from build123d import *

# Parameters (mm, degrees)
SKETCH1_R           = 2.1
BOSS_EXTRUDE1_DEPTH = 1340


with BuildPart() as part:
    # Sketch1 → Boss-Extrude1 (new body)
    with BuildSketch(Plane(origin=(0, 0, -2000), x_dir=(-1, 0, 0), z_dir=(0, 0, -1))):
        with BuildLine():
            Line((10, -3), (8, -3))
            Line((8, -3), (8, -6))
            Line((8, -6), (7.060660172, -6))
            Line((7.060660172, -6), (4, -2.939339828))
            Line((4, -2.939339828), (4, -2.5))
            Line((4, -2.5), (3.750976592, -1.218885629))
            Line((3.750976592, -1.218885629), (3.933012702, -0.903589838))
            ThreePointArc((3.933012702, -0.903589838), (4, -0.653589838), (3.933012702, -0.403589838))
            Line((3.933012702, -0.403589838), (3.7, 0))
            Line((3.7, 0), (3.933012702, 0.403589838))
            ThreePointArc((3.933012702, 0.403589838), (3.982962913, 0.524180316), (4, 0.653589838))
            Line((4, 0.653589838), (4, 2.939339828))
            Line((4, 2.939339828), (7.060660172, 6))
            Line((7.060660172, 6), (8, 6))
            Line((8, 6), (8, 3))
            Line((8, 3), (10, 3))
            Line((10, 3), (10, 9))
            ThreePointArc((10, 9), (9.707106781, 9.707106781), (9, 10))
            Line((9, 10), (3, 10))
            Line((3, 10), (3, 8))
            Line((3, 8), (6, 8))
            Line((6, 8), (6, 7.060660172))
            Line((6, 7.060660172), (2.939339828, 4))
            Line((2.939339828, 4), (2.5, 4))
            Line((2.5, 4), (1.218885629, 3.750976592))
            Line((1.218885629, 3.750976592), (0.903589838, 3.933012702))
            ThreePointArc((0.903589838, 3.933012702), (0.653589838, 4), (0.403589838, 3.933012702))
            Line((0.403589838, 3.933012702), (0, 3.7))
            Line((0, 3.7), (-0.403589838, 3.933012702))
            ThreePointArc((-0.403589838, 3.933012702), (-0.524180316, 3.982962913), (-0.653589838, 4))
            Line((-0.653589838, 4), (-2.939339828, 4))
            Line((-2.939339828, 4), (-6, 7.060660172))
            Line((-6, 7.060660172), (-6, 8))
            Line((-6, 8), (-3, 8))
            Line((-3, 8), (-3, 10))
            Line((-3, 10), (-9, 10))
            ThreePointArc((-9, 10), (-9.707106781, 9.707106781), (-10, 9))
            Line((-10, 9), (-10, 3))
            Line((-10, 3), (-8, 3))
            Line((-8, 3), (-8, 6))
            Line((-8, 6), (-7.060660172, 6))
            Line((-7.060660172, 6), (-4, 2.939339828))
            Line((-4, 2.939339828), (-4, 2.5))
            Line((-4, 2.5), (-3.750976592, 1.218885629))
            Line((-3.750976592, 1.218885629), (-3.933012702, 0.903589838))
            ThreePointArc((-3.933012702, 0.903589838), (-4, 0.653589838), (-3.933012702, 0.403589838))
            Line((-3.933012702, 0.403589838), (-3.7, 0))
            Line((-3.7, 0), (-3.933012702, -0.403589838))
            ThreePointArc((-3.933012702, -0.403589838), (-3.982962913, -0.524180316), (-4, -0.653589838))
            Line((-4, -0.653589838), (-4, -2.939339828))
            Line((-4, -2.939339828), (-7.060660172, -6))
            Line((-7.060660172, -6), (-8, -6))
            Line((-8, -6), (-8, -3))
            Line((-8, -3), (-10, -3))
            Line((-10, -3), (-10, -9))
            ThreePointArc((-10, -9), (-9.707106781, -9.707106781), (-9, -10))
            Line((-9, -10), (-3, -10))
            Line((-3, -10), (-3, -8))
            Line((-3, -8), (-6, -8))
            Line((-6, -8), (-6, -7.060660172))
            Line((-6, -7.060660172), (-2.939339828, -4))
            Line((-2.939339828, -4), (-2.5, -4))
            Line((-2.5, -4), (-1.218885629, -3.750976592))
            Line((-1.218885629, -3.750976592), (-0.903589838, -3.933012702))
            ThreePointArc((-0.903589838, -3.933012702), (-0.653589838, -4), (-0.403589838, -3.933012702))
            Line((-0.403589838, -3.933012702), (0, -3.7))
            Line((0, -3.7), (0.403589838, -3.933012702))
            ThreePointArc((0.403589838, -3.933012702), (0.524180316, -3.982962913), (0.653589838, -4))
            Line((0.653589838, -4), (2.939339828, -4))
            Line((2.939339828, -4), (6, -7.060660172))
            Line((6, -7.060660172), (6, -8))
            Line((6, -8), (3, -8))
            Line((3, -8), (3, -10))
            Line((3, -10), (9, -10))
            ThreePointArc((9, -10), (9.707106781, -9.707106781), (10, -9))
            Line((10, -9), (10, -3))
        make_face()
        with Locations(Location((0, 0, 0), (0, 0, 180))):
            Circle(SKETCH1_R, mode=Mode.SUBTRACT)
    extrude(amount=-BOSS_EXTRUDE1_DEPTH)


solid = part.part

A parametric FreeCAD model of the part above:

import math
import FreeCAD as App
import Part
import Sketcher
from FreeCAD import Vector
Q = App.Units.Quantity

doc = App.newDocument("Part")
params = doc.addObject("Spreadsheet::Sheet", "Params")
for row, (alias, value) in enumerate([
    ("sketch1_radius", "1 mm"),
    ("sketch1_diameter", "4.2 mm"),
    ("sketch1_radius2", "0.5 mm"),
    ("sketch1_width", "2 mm"),
    ("sketch1_width2", "6 mm"),
    ("pad1_length", "1340 mm"),
], start=1):
    params.set(f"A{row}", alias)
    params.set(f"B{row}", "=" + value)
    params.setAlias(f"B{row}", alias)

body = doc.addObject("PartDesign::Body", "Body")

# Sketch on XY plane
sketch1 = body.newObject("Sketcher::SketchObject", "Sketch")
sketch1.AttachmentSupport = (doc.getObject("XY_Plane"), [""])
sketch1.MapMode = "FlatFace"
sketch1.AttachmentOffset = App.Placement(Vector(0, 0, -2000), App.Rotation())
sketch1.addGeometry([
    Part.LineSegment(Vector(-10, -3, 0), Vector(-8, -3, 0)),  # 0
    Part.LineSegment(Vector(-8, -3, 0), Vector(-8, -6, 0)),  # 1
    Part.LineSegment(Vector(-8, -6, 0), Vector(-7.06, -6, 0)),  # 2
    Part.LineSegment(Vector(-7.06, -6, 0), Vector(-4, -2.94, 0)),  # 3
    Part.LineSegment(Vector(-4, -2.94, 0), Vector(-4, -2.5, 0)),  # 4
    Part.LineSegment(Vector(-4, -2.5, 0), Vector(-3.75, -1.22, 0)),  # 5
    Part.LineSegment(Vector(-3.75, -1.22, 0), Vector(-3.93, -0.9, 0)),  # 6
    Part.ArcOfCircle(Part.Circle(Vector(-3.5, -0.65, 0), Vector(0, 0, 1), 0.5), math.radians(150), math.radians(210)),  # 7
    Part.LineSegment(Vector(-3.93, -0.4, 0), Vector(-3.7, 0, 0)),  # 8
    Part.LineSegment(Vector(-3.7, 0, 0), Vector(-3.93, 0.4, 0)),  # 9
    Part.ArcOfCircle(Part.Circle(Vector(-3.5, 0.65, 0), Vector(0, 0, 1), 0.5), math.radians(-180), math.radians(-150)),  # 10
    Part.LineSegment(Vector(-4, 0.65, 0), Vector(-4, 2.94, 0)),  # 11
    Part.LineSegment(Vector(-4, 2.94, 0), Vector(-7.06, 6, 0)),  # 12
    Part.LineSegment(Vector(-7.06, 6, 0), Vector(-8, 6, 0)),  # 13
    Part.LineSegment(Vector(-8, 6, 0), Vector(-8, 3, 0)),  # 14
    Part.LineSegment(Vector(-8, 3, 0), Vector(-10, 3, 0)),  # 15
    Part.LineSegment(Vector(-10, 3, 0), Vector(-10, 9, 0)),  # 16
    Part.ArcOfCircle(Part.Circle(Vector(-9, 9, 0), Vector(0, 0, 1), 1), math.radians(90), math.radians(180)),  # 17
    Part.LineSegment(Vector(-9, 10, 0), Vector(-3, 10, 0)),  # 18
    Part.LineSegment(Vector(-3, 10, 0), Vector(-3, 8, 0)),  # 19
    Part.LineSegment(Vector(-3, 8, 0), Vector(-6, 8, 0)),  # 20
    Part.LineSegment(Vector(-6, 8, 0), Vector(-6, 7.06, 0)),  # 21
    Part.LineSegment(Vector(-6, 7.06, 0), Vector(-2.94, 4, 0)),  # 22
    Part.LineSegment(Vector(-2.94, 4, 0), Vector(-2.5, 4, 0)),  # 23
    Part.LineSegment(Vector(-2.5, 4, 0), Vector(-1.22, 3.75, 0)),  # 24
    Part.LineSegment(Vector(-1.22, 3.75, 0), Vector(-0.9, 3.93, 0)),  # 25
    Part.ArcOfCircle(Part.Circle(Vector(-0.65, 3.5, 0), Vector(0, 0, 1), 0.5), math.radians(60), math.radians(120)),  # 26
    Part.LineSegment(Vector(-0.4, 3.93, 0), Vector(0, 3.7, 0)),  # 27
    Part.LineSegment(Vector(0, 3.7, 0), Vector(0.4, 3.93, 0)),  # 28
    Part.ArcOfCircle(Part.Circle(Vector(0.65, 3.5, 0), Vector(0, 0, 1), 0.5), math.radians(90), math.radians(120)),  # 29
    Part.LineSegment(Vector(0.65, 4, 0), Vector(2.94, 4, 0)),  # 30
    Part.LineSegment(Vector(2.94, 4, 0), Vector(6, 7.06, 0)),  # 31
    Part.LineSegment(Vector(6, 7.06, 0), Vector(6, 8, 0)),  # 32
    Part.LineSegment(Vector(6, 8, 0), Vector(3, 8, 0)),  # 33
    Part.LineSegment(Vector(3, 8, 0), Vector(3, 10, 0)),  # 34
    Part.LineSegment(Vector(3, 10, 0), Vector(9, 10, 0)),  # 35
    Part.ArcOfCircle(Part.Circle(Vector(9, 9, 0), Vector(0, 0, 1), 1), math.radians(0), math.radians(90)),  # 36
    Part.LineSegment(Vector(10, 9, 0), Vector(10, 3, 0)),  # 37
    Part.LineSegment(Vector(10, 3, 0), Vector(8, 3, 0)),  # 38
    Part.LineSegment(Vector(8, 3, 0), Vector(8, 6, 0)),  # 39
    Part.LineSegment(Vector(8, 6, 0), Vector(7.06, 6, 0)),  # 40
    Part.LineSegment(Vector(7.06, 6, 0), Vector(4, 2.94, 0)),  # 41
    Part.LineSegment(Vector(4, 2.94, 0), Vector(4, 2.5, 0)),  # 42
    Part.LineSegment(Vector(4, 2.5, 0), Vector(3.75, 1.22, 0)),  # 43
    Part.LineSegment(Vector(3.75, 1.22, 0), Vector(3.93, 0.9, 0)),  # 44
    Part.ArcOfCircle(Part.Circle(Vector(3.5, 0.65, 0), Vector(0, 0, 1), 0.5), math.radians(-30), math.radians(30)),  # 45
    Part.LineSegment(Vector(3.93, 0.4, 0), Vector(3.7, 0, 0)),  # 46
    Part.LineSegment(Vector(3.7, 0, 0), Vector(3.93, -0.4, 0)),  # 47
    Part.ArcOfCircle(Part.Circle(Vector(3.5, -0.65, 0), Vector(0, 0, 1), 0.5), math.radians(0), math.radians(30)),  # 48
    Part.LineSegment(Vector(4, -0.65, 0), Vector(4, -2.94, 0)),  # 49
    Part.LineSegment(Vector(4, -2.94, 0), Vector(7.06, -6, 0)),  # 50
    Part.LineSegment(Vector(7.06, -6, 0), Vector(8, -6, 0)),  # 51
    Part.LineSegment(Vector(8, -6, 0), Vector(8, -3, 0)),  # 52
    Part.LineSegment(Vector(8, -3, 0), Vector(10, -3, 0)),  # 53
    Part.LineSegment(Vector(10, -3, 0), Vector(10, -9, 0)),  # 54
    Part.ArcOfCircle(Part.Circle(Vector(9, -9, 0), Vector(0, 0, 1), 1), math.radians(-90), math.radians(0)),  # 55
    Part.LineSegment(Vector(9, -10, 0), Vector(3, -10, 0)),  # 56
    Part.LineSegment(Vector(3, -10, 0), Vector(3, -8, 0)),  # 57
    Part.LineSegment(Vector(3, -8, 0), Vector(6, -8, 0)),  # 58
    Part.LineSegment(Vector(6, -8, 0), Vector(6, -7.06, 0)),  # 59
    Part.LineSegment(Vector(6, -7.06, 0), Vector(2.94, -4, 0)),  # 60
    Part.LineSegment(Vector(2.94, -4, 0), Vector(2.5, -4, 0)),  # 61
    Part.LineSegment(Vector(2.5, -4, 0), Vector(1.22, -3.75, 0)),  # 62
    Part.LineSegment(Vector(1.22, -3.75, 0), Vector(0.9, -3.93, 0)),  # 63
    Part.ArcOfCircle(Part.Circle(Vector(0.65, -3.5, 0), Vector(0, 0, 1), 0.5), math.radians(-120), math.radians(-60)),  # 64
    Part.LineSegment(Vector(0.4, -3.93, 0), Vector(0, -3.7, 0)),  # 65
    Part.LineSegment(Vector(0, -3.7, 0), Vector(-0.4, -3.93, 0)),  # 66
    Part.ArcOfCircle(Part.Circle(Vector(-0.65, -3.5, 0), Vector(0, 0, 1), 0.5), math.radians(-90), math.radians(-60)),  # 67
    Part.LineSegment(Vector(-0.65, -4, 0), Vector(-2.94, -4, 0)),  # 68
    Part.LineSegment(Vector(-2.94, -4, 0), Vector(-6, -7.06, 0)),  # 69
    Part.LineSegment(Vector(-6, -7.06, 0), Vector(-6, -8, 0)),  # 70
    Part.LineSegment(Vector(-6, -8, 0), Vector(-3, -8, 0)),  # 71
    Part.LineSegment(Vector(-3, -8, 0), Vector(-3, -10, 0)),  # 72
    Part.LineSegment(Vector(-3, -10, 0), Vector(-9, -10, 0)),  # 73
    Part.ArcOfCircle(Part.Circle(Vector(-9, -9, 0), Vector(0, 0, 1), 1), math.radians(-180), math.radians(-90)),  # 74
    Part.LineSegment(Vector(-10, -9, 0), Vector(-10, -3, 0)),  # 75
    Part.Circle(Vector(0, 0, 0), Vector(0, 0, 1), 2.1),  # 76
], False)
sketch1.addConstraint([
    Sketcher.Constraint("Coincident", 0, 2, 1, 1),
    Sketcher.Constraint("Coincident", 1, 2, 2, 1),
    Sketcher.Constraint("Coincident", 2, 2, 3, 1),
    Sketcher.Constraint("Coincident", 3, 2, 4, 1),
    Sketcher.Constraint("Coincident", 4, 2, 5, 1),
    Sketcher.Constraint("Coincident", 5, 2, 6, 1),
    Sketcher.Constraint("Tangent", 6, 2, 7, 2),
    Sketcher.Constraint("Tangent", 7, 1, 8, 1),
    Sketcher.Constraint("Coincident", 8, 2, 9, 1),
    Sketcher.Constraint("Tangent", 9, 2, 10, 2),
    Sketcher.Constraint("Tangent", 10, 1, 11, 1),
    Sketcher.Constraint("Coincident", 11, 2, 12, 1),
    Sketcher.Constraint("Coincident", 12, 2, 13, 1),
    Sketcher.Constraint("Coincident", 13, 2, 14, 1),
    Sketcher.Constraint("Coincident", 14, 2, 15, 1),
    Sketcher.Constraint("Coincident", 15, 2, 16, 1),
    Sketcher.Constraint("Tangent", 16, 2, 17, 2),
    Sketcher.Constraint("Tangent", 17, 1, 18, 1),
    Sketcher.Constraint("Coincident", 18, 2, 19, 1),
    Sketcher.Constraint("Coincident", 19, 2, 20, 1),
    Sketcher.Constraint("Coincident", 20, 2, 21, 1),
    Sketcher.Constraint("Coincident", 21, 2, 22, 1),
    Sketcher.Constraint("Coincident", 22, 2, 23, 1),
    Sketcher.Constraint("Coincident", 23, 2, 24, 1),
    Sketcher.Constraint("Coincident", 24, 2, 25, 1),
    Sketcher.Constraint("Tangent", 25, 2, 26, 2),
    Sketcher.Constraint("Tangent", 26, 1, 27, 1),
    Sketcher.Constraint("Coincident", 27, 2, 28, 1),
    Sketcher.Constraint("Tangent", 28, 2, 29, 2),
    Sketcher.Constraint("Tangent", 29, 1, 30, 1),
    Sketcher.Constraint("Coincident", 30, 2, 31, 1),
    Sketcher.Constraint("Coincident", 31, 2, 32, 1),
    Sketcher.Constraint("Coincident", 32, 2, 33, 1),
    Sketcher.Constraint("Coincident", 33, 2, 34, 1),
    Sketcher.Constraint("Coincident", 34, 2, 35, 1),
    Sketcher.Constraint("Tangent", 35, 2, 36, 2),
    Sketcher.Constraint("Tangent", 36, 1, 37, 1),
    Sketcher.Constraint("Coincident", 37, 2, 38, 1),
    Sketcher.Constraint("Coincident", 38, 2, 39, 1),
    Sketcher.Constraint("Coincident", 39, 2, 40, 1),
    Sketcher.Constraint("Coincident", 40, 2, 41, 1),
    Sketcher.Constraint("Coincident", 41, 2, 42, 1),
    Sketcher.Constraint("Coincident", 42, 2, 43, 1),
    Sketcher.Constraint("Coincident", 43, 2, 44, 1),
    Sketcher.Constraint("Tangent", 44, 2, 45, 2),
    Sketcher.Constraint("Tangent", 45, 1, 46, 1),
    Sketcher.Constraint("Coincident", 46, 2, 47, 1),
    Sketcher.Constraint("Tangent", 47, 2, 48, 2),
    Sketcher.Constraint("Tangent", 48, 1, 49, 1),
    Sketcher.Constraint("Coincident", 49, 2, 50, 1),
    Sketcher.Constraint("Coincident", 50, 2, 51, 1),
    Sketcher.Constraint("Coincident", 51, 2, 52, 1),
    Sketcher.Constraint("Coincident", 52, 2, 53, 1),
    Sketcher.Constraint("Coincident", 53, 2, 54, 1),
    Sketcher.Constraint("Tangent", 54, 2, 55, 2),
    Sketcher.Constraint("Tangent", 55, 1, 56, 1),
    Sketcher.Constraint("Coincident", 56, 2, 57, 1),
    Sketcher.Constraint("Coincident", 57, 2, 58, 1),
    Sketcher.Constraint("Coincident", 58, 2, 59, 1),
    Sketcher.Constraint("Coincident", 59, 2, 60, 1),
    Sketcher.Constraint("Coincident", 60, 2, 61, 1),
    Sketcher.Constraint("Coincident", 61, 2, 62, 1),
    Sketcher.Constraint("Coincident", 62, 2, 63, 1),
    Sketcher.Constraint("Tangent", 63, 2, 64, 2),
    Sketcher.Constraint("Tangent", 64, 1, 65, 1),
    Sketcher.Constraint("Coincident", 65, 2, 66, 1),
    Sketcher.Constraint("Tangent", 66, 2, 67, 2),
    Sketcher.Constraint("Tangent", 67, 1, 68, 1),
    Sketcher.Constraint("Coincident", 68, 2, 69, 1),
    Sketcher.Constraint("Coincident", 69, 2, 70, 1),
    Sketcher.Constraint("Coincident", 70, 2, 71, 1),
    Sketcher.Constraint("Coincident", 71, 2, 72, 1),
    Sketcher.Constraint("Coincident", 72, 2, 73, 1),
    Sketcher.Constraint("Tangent", 73, 2, 74, 2),
    Sketcher.Constraint("Tangent", 74, 1, 75, 1),
    Sketcher.Constraint("Coincident", 75, 2, 0, 1),
    Sketcher.Constraint("Horizontal", 0),
    Sketcher.Constraint("Vertical", 1),
    Sketcher.Constraint("Horizontal", 2),
    Sketcher.Constraint("Vertical", 4),
    Sketcher.Constraint("Vertical", 11),
    Sketcher.Constraint("Horizontal", 13),
    Sketcher.Constraint("Vertical", 14),
    Sketcher.Constraint("Horizontal", 15),
    Sketcher.Constraint("Vertical", 16),
    Sketcher.Constraint("Horizontal", 18),
    Sketcher.Constraint("Vertical", 19),
    Sketcher.Constraint("Horizontal", 20),
    Sketcher.Constraint("Vertical", 21),
    Sketcher.Constraint("Horizontal", 23),
    Sketcher.Constraint("Horizontal", 30),
    Sketcher.Constraint("Vertical", 32),
    Sketcher.Constraint("Horizontal", 33),
    Sketcher.Constraint("Vertical", 34),
    Sketcher.Constraint("Horizontal", 35),
    Sketcher.Constraint("Vertical", 37),
    Sketcher.Constraint("Horizontal", 38),
    Sketcher.Constraint("Vertical", 39),
    Sketcher.Constraint("Horizontal", 40),
    Sketcher.Constraint("Vertical", 42),
    Sketcher.Constraint("Vertical", 49),
    Sketcher.Constraint("Horizontal", 51),
    Sketcher.Constraint("Vertical", 52),
    Sketcher.Constraint("Horizontal", 53),
    Sketcher.Constraint("Vertical", 54),
    Sketcher.Constraint("Horizontal", 56),
    Sketcher.Constraint("Vertical", 57),
    Sketcher.Constraint("Horizontal", 58),
    Sketcher.Constraint("Vertical", 59),
    Sketcher.Constraint("Horizontal", 61),
    Sketcher.Constraint("Horizontal", 68),
    Sketcher.Constraint("Vertical", 70),
    Sketcher.Constraint("Horizontal", 71),
    Sketcher.Constraint("Vertical", 72),
    Sketcher.Constraint("Horizontal", 73),
    Sketcher.Constraint("Vertical", 75),
    Sketcher.Constraint("Coincident", 76, 3, -1, 1),
    Sketcher.Constraint("Equal", 7, 10),
    Sketcher.Constraint("Equal", 10, 26),
    Sketcher.Constraint("Equal", 26, 29),
    Sketcher.Constraint("Equal", 17, 36),
    Sketcher.Constraint("Equal", 29, 45),
    Sketcher.Constraint("Equal", 45, 48),
    Sketcher.Constraint("Equal", 36, 55),
    Sketcher.Constraint("Equal", 48, 64),
    Sketcher.Constraint("Equal", 64, 67),
    Sketcher.Constraint("Equal", 55, 74),
    Sketcher.Constraint("Symmetric", 7, 3, 45, 3, -1, 1),
    Sketcher.Constraint("Symmetric", 10, 3, 48, 3, -1, 1),
    Sketcher.Constraint("Symmetric", 17, 3, 55, 3, -1, 1),
    Sketcher.Constraint("Symmetric", 26, 3, 64, 3, -1, 1),
    Sketcher.Constraint("Symmetric", 29, 3, 67, 3, -1, 1),
    Sketcher.Constraint("Symmetric", 36, 3, 74, 3, -1, 1),
    Sketcher.Constraint("Symmetric", 0, 2, 38, 2, -1, 1),
    Sketcher.Constraint("Symmetric", 2, 2, 40, 2, -1, 1),
    Sketcher.Constraint("Symmetric", 3, 2, 41, 2, -1, 1),
    Sketcher.Constraint("Symmetric", 5, 2, 43, 2, -1, 1),
    Sketcher.Constraint("Symmetric", 8, 2, 46, 2, -1, 1),
    Sketcher.Constraint("Symmetric", 12, 2, 50, 2, -1, 1),
    Sketcher.Constraint("Symmetric", 14, 2, 52, 2, -1, 1),
    Sketcher.Constraint("Symmetric", 19, 2, 57, 2, -1, 1),
    Sketcher.Constraint("Symmetric", 21, 2, 59, 2, -1, 1),
    Sketcher.Constraint("Symmetric", 22, 2, 60, 2, -1, 1),
    Sketcher.Constraint("Symmetric", 24, 2, 62, 2, -1, 1),
    Sketcher.Constraint("Symmetric", 27, 2, 65, 2, -1, 1),
    Sketcher.Constraint("Symmetric", 31, 2, 69, 2, -1, 1),
    Sketcher.Constraint("Symmetric", 33, 2, 71, 2, -1, 1),
    Sketcher.Constraint("Symmetric", 26, 3, 29, 3, -2),
    Sketcher.Constraint("Symmetric", 17, 3, 36, 3, -2),
    Sketcher.Constraint("Symmetric", 10, 3, 45, 3, -2),
    Sketcher.Constraint("Symmetric", 22, 2, 30, 2, -2),
    Sketcher.Constraint("Symmetric", 21, 2, 31, 2, -2),
    Sketcher.Constraint("Symmetric", 19, 2, 33, 2, -2),
    Sketcher.Constraint("Symmetric", 14, 2, 38, 2, -2),
    Sketcher.Constraint("Symmetric", 12, 2, 40, 2, -2),
    Sketcher.Constraint("Symmetric", 11, 2, 41, 2, -2),
    Sketcher.Constraint("PointOnObject", 8, 2, -1),
    Sketcher.Constraint("PointOnObject", 27, 2, -2),
    Sketcher.Constraint("Parallel", 6, 9),
    Sketcher.Constraint("Perpendicular", 3, 12),
    Sketcher.Constraint("Parallel", 12, 22),
    Sketcher.Constraint("Perpendicular", 5, 24),
    Sketcher.Constraint("Perpendicular", 9, 25),
    Sketcher.Constraint("Perpendicular", 8, 27),
    Sketcher.Constraint("Perpendicular", 24, 43),
    Sketcher.Constraint("Perpendicular", 41, 50),
    Sketcher.Constraint("Perpendicular", 43, 62),
    Sketcher.Constraint("Perpendicular", 60, 69),
    Sketcher.Constraint("Equal", 71, 1),
    Sketcher.Constraint("Equal", 61, 4),
    Sketcher.Constraint("Equal", 68, 11),
    Sketcher.Constraint("Equal", 73, 16),
    Sketcher.Constraint("Equal", 53, 19),
    Sketcher.Constraint("Equal", 51, 21),
    Sketcher.Constraint("Equal", 12, 22),
    Sketcher.Constraint("Equal", 9, 27),
    Sketcher.Constraint("Radius", 17, 1.0),
    Sketcher.Constraint("Diameter", 76, 4.2),
    Sketcher.Constraint("Radius", 7, 0.5),
    Sketcher.Constraint("DistanceX", 0, 1, 0, 2, 2.0),
    Sketcher.Constraint("DistanceX", 18, 1, 18, 2, 6.0),
    Sketcher.Constraint("DistanceX", 20, 2, 20, 1, 3.0),
    Sketcher.Constraint("Angle", 5, Q("79 deg")),
    Sketcher.Constraint("Angle", 6, Q("120 deg")),
    Sketcher.Constraint("DistanceX", 17, 3, -1, 1, 9.0),
    Sketcher.Constraint("DistanceX", 3, 2, -1, 1, 4.0),
    Sketcher.Constraint("DistanceY", 4, 2, -1, 1, 2.5),
    Sketcher.Constraint("DistanceX", 8, 2, -1, 1, 3.7),
    Sketcher.Constraint("DistanceX", 2, 1, 2, 2, 0.93934),
])
sketch1.setExpression("Constraints[176]", "Params.sketch1_radius")
sketch1.setExpression("Constraints[177]", "Params.sketch1_diameter")
sketch1.setExpression("Constraints[178]", "Params.sketch1_radius2")
sketch1.setExpression("Constraints[179]", "Params.sketch1_width")
sketch1.setExpression("Constraints[180]", "Params.sketch1_width2")
pad1 = body.newObject("PartDesign::Pad", "Pad")
pad1.Profile = sketch1
pad1.setExpression("Length", "Params.pad1_length")

doc.recompute()
